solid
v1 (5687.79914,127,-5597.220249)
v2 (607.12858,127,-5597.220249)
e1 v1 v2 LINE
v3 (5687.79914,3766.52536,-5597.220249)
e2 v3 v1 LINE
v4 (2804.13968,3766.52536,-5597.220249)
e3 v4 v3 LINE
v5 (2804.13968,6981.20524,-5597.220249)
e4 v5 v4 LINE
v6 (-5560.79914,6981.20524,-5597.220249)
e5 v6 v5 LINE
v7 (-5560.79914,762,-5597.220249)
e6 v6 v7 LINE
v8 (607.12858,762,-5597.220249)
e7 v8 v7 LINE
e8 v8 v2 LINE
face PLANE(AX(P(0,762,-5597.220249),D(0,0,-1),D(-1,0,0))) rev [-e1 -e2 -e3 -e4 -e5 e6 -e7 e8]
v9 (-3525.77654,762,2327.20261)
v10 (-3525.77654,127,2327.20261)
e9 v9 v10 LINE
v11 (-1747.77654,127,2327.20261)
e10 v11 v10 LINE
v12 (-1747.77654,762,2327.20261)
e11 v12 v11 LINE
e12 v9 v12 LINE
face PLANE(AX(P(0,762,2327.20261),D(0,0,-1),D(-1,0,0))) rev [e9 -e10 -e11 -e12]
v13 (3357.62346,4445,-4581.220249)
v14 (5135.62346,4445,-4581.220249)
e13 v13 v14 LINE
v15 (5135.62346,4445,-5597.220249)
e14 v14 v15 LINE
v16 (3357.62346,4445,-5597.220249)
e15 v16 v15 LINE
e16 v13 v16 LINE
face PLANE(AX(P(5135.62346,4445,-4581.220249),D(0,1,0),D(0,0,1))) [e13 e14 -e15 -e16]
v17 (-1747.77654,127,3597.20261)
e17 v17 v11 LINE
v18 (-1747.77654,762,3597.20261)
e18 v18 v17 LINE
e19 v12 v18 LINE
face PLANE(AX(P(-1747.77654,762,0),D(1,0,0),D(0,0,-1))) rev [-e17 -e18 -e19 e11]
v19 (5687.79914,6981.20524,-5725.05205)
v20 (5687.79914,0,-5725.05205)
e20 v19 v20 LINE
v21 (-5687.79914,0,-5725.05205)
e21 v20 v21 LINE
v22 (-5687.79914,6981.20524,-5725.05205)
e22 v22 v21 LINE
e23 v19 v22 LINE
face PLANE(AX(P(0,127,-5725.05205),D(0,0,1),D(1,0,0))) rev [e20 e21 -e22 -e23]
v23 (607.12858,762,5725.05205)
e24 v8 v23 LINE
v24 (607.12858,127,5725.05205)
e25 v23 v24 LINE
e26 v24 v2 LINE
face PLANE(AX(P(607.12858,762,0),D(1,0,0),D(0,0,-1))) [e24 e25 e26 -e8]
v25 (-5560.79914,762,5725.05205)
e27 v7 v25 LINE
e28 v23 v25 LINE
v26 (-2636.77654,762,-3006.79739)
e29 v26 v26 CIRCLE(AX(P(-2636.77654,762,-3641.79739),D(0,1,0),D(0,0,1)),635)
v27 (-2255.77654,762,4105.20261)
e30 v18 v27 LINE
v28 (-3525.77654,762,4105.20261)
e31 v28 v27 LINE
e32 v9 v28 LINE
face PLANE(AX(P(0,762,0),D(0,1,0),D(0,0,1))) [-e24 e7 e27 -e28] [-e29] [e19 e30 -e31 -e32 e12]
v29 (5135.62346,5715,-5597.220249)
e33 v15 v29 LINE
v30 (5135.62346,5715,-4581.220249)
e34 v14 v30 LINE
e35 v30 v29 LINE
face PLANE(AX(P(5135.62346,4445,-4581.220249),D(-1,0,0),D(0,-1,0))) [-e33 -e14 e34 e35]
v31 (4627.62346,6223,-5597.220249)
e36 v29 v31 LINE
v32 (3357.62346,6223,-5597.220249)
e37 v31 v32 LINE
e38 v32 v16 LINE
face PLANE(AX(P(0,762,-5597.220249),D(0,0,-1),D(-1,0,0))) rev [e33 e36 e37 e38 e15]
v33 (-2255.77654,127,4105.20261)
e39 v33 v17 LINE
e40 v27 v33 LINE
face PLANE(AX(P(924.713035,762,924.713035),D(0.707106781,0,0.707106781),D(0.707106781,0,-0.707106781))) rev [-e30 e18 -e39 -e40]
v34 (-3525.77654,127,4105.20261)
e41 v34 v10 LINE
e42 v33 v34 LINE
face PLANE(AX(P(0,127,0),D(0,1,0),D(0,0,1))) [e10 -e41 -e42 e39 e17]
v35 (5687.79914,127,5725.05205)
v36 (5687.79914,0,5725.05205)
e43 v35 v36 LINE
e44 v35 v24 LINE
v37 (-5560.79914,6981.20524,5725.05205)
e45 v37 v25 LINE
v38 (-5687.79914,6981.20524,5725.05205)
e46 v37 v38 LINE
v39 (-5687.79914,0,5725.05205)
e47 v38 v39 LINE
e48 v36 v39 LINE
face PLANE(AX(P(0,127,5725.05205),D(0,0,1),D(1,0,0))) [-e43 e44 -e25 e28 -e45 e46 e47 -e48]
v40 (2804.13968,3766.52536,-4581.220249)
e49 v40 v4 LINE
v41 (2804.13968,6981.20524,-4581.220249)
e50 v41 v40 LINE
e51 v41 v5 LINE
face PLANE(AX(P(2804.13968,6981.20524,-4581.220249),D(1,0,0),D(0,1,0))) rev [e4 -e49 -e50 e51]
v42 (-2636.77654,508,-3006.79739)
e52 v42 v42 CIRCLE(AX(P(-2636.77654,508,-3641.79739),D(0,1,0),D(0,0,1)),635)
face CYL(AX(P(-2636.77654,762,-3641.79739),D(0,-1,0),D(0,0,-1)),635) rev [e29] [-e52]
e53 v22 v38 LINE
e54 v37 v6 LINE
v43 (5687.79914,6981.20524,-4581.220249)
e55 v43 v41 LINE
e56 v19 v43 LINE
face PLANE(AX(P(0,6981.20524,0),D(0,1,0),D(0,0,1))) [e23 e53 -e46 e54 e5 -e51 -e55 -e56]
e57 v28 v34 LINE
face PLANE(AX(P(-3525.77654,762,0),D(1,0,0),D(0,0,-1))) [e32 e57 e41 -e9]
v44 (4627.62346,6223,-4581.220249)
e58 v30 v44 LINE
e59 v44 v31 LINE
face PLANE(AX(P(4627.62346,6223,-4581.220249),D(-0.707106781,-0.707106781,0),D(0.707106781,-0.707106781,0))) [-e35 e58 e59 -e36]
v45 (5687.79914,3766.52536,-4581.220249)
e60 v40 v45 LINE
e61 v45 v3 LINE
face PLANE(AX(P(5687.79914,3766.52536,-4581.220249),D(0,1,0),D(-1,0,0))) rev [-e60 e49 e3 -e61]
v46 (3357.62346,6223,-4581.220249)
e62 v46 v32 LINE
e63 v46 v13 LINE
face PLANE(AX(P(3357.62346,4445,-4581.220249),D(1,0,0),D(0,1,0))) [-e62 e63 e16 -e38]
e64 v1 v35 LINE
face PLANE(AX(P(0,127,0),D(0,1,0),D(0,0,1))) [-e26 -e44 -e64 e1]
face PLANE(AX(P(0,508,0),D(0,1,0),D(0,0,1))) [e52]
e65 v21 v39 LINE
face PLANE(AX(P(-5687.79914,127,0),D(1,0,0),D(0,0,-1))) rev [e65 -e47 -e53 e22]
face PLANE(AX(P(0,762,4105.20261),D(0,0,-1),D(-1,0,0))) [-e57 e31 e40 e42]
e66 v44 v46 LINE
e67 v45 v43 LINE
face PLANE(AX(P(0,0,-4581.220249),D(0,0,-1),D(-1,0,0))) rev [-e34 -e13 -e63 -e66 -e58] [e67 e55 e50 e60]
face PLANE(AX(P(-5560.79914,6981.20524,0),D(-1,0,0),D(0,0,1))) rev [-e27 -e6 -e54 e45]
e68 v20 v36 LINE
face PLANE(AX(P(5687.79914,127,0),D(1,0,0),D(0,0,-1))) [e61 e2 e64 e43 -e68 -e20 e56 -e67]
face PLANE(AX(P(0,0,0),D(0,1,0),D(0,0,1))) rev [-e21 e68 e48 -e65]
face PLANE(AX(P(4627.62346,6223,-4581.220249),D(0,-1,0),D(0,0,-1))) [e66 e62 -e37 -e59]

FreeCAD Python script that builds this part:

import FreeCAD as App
import Part
import Sketcher
Q = App.Units.Quantity

doc = App.newDocument("Part")
body = doc.addObject("PartDesign::Body", "Body")

# Sketch on XZ plane
sketch1 = body.newObject("Sketcher::SketchObject", "Sketch")
sketch1.AttachmentSupport = (doc.getObject("XZ_Plane"), [""])
sketch1.MapMode = "FlatFace"
sketch1.addGeometry([
    Part.LineSegment(App.Vector(5687.79914, 5725.05205, 0), App.Vector(5687.79914, -5725.05205, 0)),
    Part.LineSegment(App.Vector(5687.79914, -5725.05205, 0), App.Vector(-5687.79914, -5725.05205, 0)),
    Part.LineSegment(App.Vector(-5687.79914, -5725.05205, 0), App.Vector(-5687.79914, 5725.05205, 0)),
    Part.LineSegment(App.Vector(-5687.79914, 5725.05205, 0), App.Vector(5687.79914, 5725.05205, 0)),
], False)
sketch1.addConstraint([
    Sketcher.Constraint("Coincident", 0, 2, 1, 1),
    Sketcher.Constraint("Coincident", 1, 2, 2, 1),
    Sketcher.Constraint("Coincident", 2, 2, 3, 1),
    Sketcher.Constraint("Coincident", 3, 2, 0, 1),
    Sketcher.Constraint("Vertical", 0),
    Sketcher.Constraint("Horizontal", 1),
    Sketcher.Constraint("Vertical", 2),
    Sketcher.Constraint("Horizontal", 3),
    Sketcher.Constraint("Symmetric", 0, 2, 2, 2, -1, 1),
    Sketcher.Constraint("DistanceX", 1, 2, 1, 1, Q("447.8582 in")),
    Sketcher.Constraint("DistanceY", 0, 2, 0, 1, Q("450.7915 in")),
])
pad1 = body.newObject("PartDesign::Pad", "Pad")
pad1.Profile = sketch1
pad1.Length = Q("5 in")
pad1.Reversed = True

# Sketch on XZ plane
sketch2 = body.newObject("Sketcher::SketchObject", "Sketch001")
sketch2.AttachmentSupport = (doc.getObject("XZ_Plane"), [""])
sketch2.MapMode = "FlatFace"
sketch2.addGeometry([
    Part.LineSegment(App.Vector(607.12858, 5725.05205, 0), App.Vector(607.12858, -5597.220249, 0)),  # 0
    Part.LineSegment(App.Vector(607.12858, -5597.220249, 0), App.Vector(5687.79914, -5597.220249, 0)),  # 1
    Part.LineSegment(App.Vector(5687.79914, -5597.220249, 0), App.Vector(5687.79914, -5725.05205, 0)),  # 2
    Part.LineSegment(App.Vector(5687.79914, -5725.05205, 0), App.Vector(-5687.79914, -5725.05205, 0)),  # 3
    Part.LineSegment(App.Vector(-5687.79914, -5725.05205, 0), App.Vector(-5687.79914, 5725.05205, 0)),  # 4
    Part.LineSegment(App.Vector(-5687.79914, 5725.05205, 0), App.Vector(607.12858, 5725.05205, 0)),  # 5
    Part.LineSegment(App.Vector(-3525.77654, 2327.20261, 0), App.Vector(-1747.77654, 2327.20261, 0)),  # 6
    Part.LineSegment(App.Vector(-1747.77654, 2327.20261, 0), App.Vector(-1747.77654, 3597.20261, 0)),  # 7
    Part.LineSegment(App.Vector(-1747.77654, 3597.20261, 0), App.Vector(-2255.77654, 4105.20261, 0)),  # 8
    Part.LineSegment(App.Vector(-2255.77654, 4105.20261, 0), App.Vector(-3525.77654, 4105.20261, 0)),  # 9
    Part.LineSegment(App.Vector(-3525.77654, 4105.20261, 0), App.Vector(-3525.77654, 2327.20261, 0)),  # 10
    Part.Circle(App.Vector(-2636.77654, -3641.79739, 0), App.Vector(0, 0, 1), 635),  # 11
], False)
sketch2.addConstraint([
    Sketcher.Constraint("Coincident", 0, 2, 1, 1),
    Sketcher.Constraint("Coincident", 1, 2, 2, 1),
    Sketcher.Constraint("Coincident", 2, 2, 3, 1),
    Sketcher.Constraint("Coincident", 3, 2, 4, 1),
    Sketcher.Constraint("Coincident", 4, 2, 5, 1),
    Sketcher.Constraint("Coincident", 5, 2, 0, 1),
    Sketcher.Constraint("Coincident", 6, 2, 7, 1),
    Sketcher.Constraint("Coincident", 7, 2, 8, 1),
    Sketcher.Constraint("Coincident", 8, 2, 9, 1),
    Sketcher.Constraint("Coincident", 9, 2, 10, 1),
    Sketcher.Constraint("Coincident", 10, 2, 6, 1),
    Sketcher.Constraint("Vertical", 0),
    Sketcher.Constraint("Horizontal", 1),
    Sketcher.Constraint("Vertical", 2),
    Sketcher.Constraint("Horizontal", 3),
    Sketcher.Constraint("Vertical", 4),
    Sketcher.Constraint("Horizontal", 5),
    Sketcher.Constraint("Horizontal", 6),
    Sketcher.Constraint("Vertical", 7),
    Sketcher.Constraint("Horizontal", 9),
    Sketcher.Constraint("Vertical", 10),
    Sketcher.Constraint("Symmetric", 2, 2, 4, 2, -1, 1),
    Sketcher.Constraint("Equal", 9, 7),
    Sketcher.Constraint("Equal", 6, 10),
    Sketcher.Constraint("Diameter", 11, Q("50 in")),
    Sketcher.Constraint("DistanceX", 6, 1, 6, 2, Q("70 in")),
    Sketcher.Constraint("DistanceX", 9, 2, 9, 1, Q("50 in")),
    Sketcher.Constraint("DistanceX", 11, 3, 6, 2, Q("35 in")),
    Sketcher.Constraint("DistanceY", 11, 3, 6, 2, Q("235 in")),
    Sketcher.Constraint("DistanceX", 1, 1, 1, 2, Q("200.0264 in")),
    Sketcher.Constraint("DistanceX", 3, 2, 3, 1, Q("447.8582 in")),
    Sketcher.Constraint("DistanceY", 4, 1, 4, 2, Q("450.7915 in")),
    Sketcher.Constraint("DistanceX", 3, 2, 11, 3, Q("120.119 in")),
    Sketcher.Constraint("DistanceY", 0, 2, 0, 1, Q("11322.272299 mm")),
    Sketcher.Constraint("DistanceY", 2, 2, 11, 3, Q("82.0179 in")),
])
pad2 = body.newObject("PartDesign::Pad", "Pad001")
pad2.Profile = sketch2
pad2.Length = Q("30 in")
pad2.Reversed = True

# Sketch on XZ plane
sketch3 = body.newObject("Sketcher::SketchObject", "Sketch002")
sketch3.AttachmentSupport = (doc.getObject("XZ_Plane"), [""])
sketch3.MapMode = "FlatFace"
sketch3.addGeometry([
    Part.LineSegment(App.Vector(5687.79914, -5597.220249, 0), App.Vector(5687.79914, -5725.05205, 0)),  # 0
    Part.LineSegment(App.Vector(5687.79914, -5725.05205, 0), App.Vector(-5687.79914, -5725.05205, 0)),  # 1
    Part.LineSegment(App.Vector(-5687.79914, -5725.05205, 0), App.Vector(-5687.79914, 5725.05205, 0)),  # 2
    Part.LineSegment(App.Vector(-5687.79914, 5725.05205, 0), App.Vector(-5560.79914, 5725.05205, 0)),  # 3
    Part.LineSegment(App.Vector(-5560.79914, 5725.05205, 0), App.Vector(-5560.79914, -5597.220249, 0)),  # 4
    Part.LineSegment(App.Vector(-5560.79914, -5597.220249, 0), App.Vector(5687.79914, -5597.220249, 0)),  # 5
], False)
sketch3.addConstraint([
    Sketcher.Constraint("Coincident", 0, 2, 1, 1),
    Sketcher.Constraint("Coincident", 1, 2, 2, 1),
    Sketcher.Constraint("Coincident", 2, 2, 3, 1),
    Sketcher.Constraint("Coincident", 3, 2, 4, 1),
    Sketcher.Constraint("Coincident", 4, 2, 5, 1),
    Sketcher.Constraint("Coincident", 5, 2, 0, 1),
    Sketcher.Constraint("Vertical", 0),
    Sketcher.Constraint("Horizontal", 1),
    Sketcher.Constraint("Vertical", 2),
    Sketcher.Constraint("Horizontal", 3),
    Sketcher.Constraint("Vertical", 4),
    Sketcher.Constraint("Horizontal", 5),
    Sketcher.Constraint("Symmetric", 0, 2, 2, 2, -1, 1),
    Sketcher.Constraint("DistanceX", 3, 1, 3, 2, Q("5 in")),
    Sketcher.Constraint("DistanceX", 1, 2, 1, 1, Q("447.8582 in")),
    Sketcher.Constraint("DistanceY", 2, 1, 2, 2, Q("450.7915 in")),
    Sketcher.Constraint("DistanceY", 0, 2, 0, 1, Q("127.831801 mm")),
])
pad3 = body.newObject("PartDesign::Pad", "Pad002")
pad3.Profile = sketch3
pad3.Length = Q("274.8506 in")
pad3.Reversed = True

# Sketch on XZ plane
sketch4 = body.newObject("Sketcher::SketchObject", "Sketch003")
sketch4.AttachmentSupport = (doc.getObject("XZ_Plane"), [""])
sketch4.MapMode = "FlatFace"
sketch4.addGeometry(Part.Circle(App.Vector(-2636.77654, -3641.79739, 0), App.Vector(0, 0, 1), 635), False)
sketch4.addConstraint([
    Sketcher.Constraint("Diameter", 0, Q("50 in")),
    Sketcher.Constraint("DistanceX", 0, 3, -1, 1, Q("103.8101 in")),
    Sketcher.Constraint("DistanceY", 0, 3, -1, 1, Q("3641.79739 mm")),
])
pad4 = body.newObject("PartDesign::Pad", "Pad003")
pad4.Profile = sketch4
pad4.Length = Q("20 in")
pad4.Reversed = True

# Sketch on XY plane
sketch5 = body.newObject("Sketcher::SketchObject", "Sketch004")
sketch5.AttachmentSupport = (doc.getObject("XY_Plane"), [""])
sketch5.MapMode = "FlatFace"
sketch5.AttachmentOffset = App.Placement(App.Vector(0, 0, -5597.220249), App.Rotation())
sketch5.addGeometry([
    Part.LineSegment(App.Vector(2804.13968, 6981.20524, 0), App.Vector(2804.13968, 3766.52536, 0)),  # 0
    Part.LineSegment(App.Vector(2804.13968, 3766.52536, 0), App.Vector(5687.79914, 3766.52536, 0)),  # 1
    Part.LineSegment(App.Vector(5687.79914, 3766.52536, 0), App.Vector(5687.79914, 6981.20524, 0)),  # 2
    Part.LineSegment(App.Vector(5687.79914, 6981.20524, 0), App.Vector(2804.13968, 6981.20524, 0)),  # 3
    Part.LineSegment(App.Vector(3357.62346, 6223, 0), App.Vector(4627.62346, 6223, 0)),  # 4
    Part.LineSegment(App.Vector(4627.62346, 6223, 0), App.Vector(5135.62346, 5715, 0)),  # 5
    Part.LineSegment(App.Vector(5135.62346, 5715, 0), App.Vector(5135.62346, 4445, 0)),  # 6
    Part.LineSegment(App.Vector(5135.62346, 4445, 0), App.Vector(3357.62346, 4445, 0)),  # 7
    Part.LineSegment(App.Vector(3357.62346, 4445, 0), App.Vector(3357.62346, 6223, 0)),  # 8
], False)
sketch5.addConstraint([
    Sketcher.Constraint("Coincident", 0, 2, 1, 1),
    Sketcher.Constraint("Coincident", 1, 2, 2, 1),
    Sketcher.Constraint("Coincident", 2, 2, 3, 1),
    Sketcher.Constraint("Coincident", 3, 2, 0, 1),
    Sketcher.Constraint("Coincident", 4, 2, 5, 1),
    Sketcher.Constraint("Coincident", 5, 2, 6, 1),
    Sketcher.Constraint("Coincident", 6, 2, 7, 1),
    Sketcher.Constraint("Coincident", 7, 2, 8, 1),
    Sketcher.Constraint("Coincident", 8, 2, 4, 1),
    Sketcher.Constraint("Vertical", 0),
    Sketcher.Constraint("Horizontal", 1),
    Sketcher.Constraint("Vertical", 2),
    Sketcher.Constraint("Horizontal", 3),
    Sketcher.Constraint("Horizontal", 4),
    Sketcher.Constraint("Vertical", 6),
    Sketcher.Constraint("Horizontal", 7),
    Sketcher.Constraint("Vertical", 8),
    Sketcher.Constraint("Equal", 4, 6),
    Sketcher.Constraint("Equal", 7, 8),
    Sketcher.Constraint("DistanceX", 4, 1, 4, 2, Q("50 in")),
    Sketcher.Constraint("DistanceX", 7, 2, 7, 1, Q("70 in")),
    Sketcher.Constraint("DistanceY", -1, 1, 4, 2, Q("245 in")),
    Sketcher.Constraint("DistanceX", 1, 1, 1, 2, Q("113.5299 in")),
    Sketcher.Constraint("DistanceY", 0, 2, 0, 1, Q("126.5622 in")),
    Sketcher.Constraint("DistanceX", -1, 1, 0, 2, Q("110.3992 in")),
    Sketcher.Constraint("DistanceY", -1, 1, 0, 2, Q("148.2884 in")),
    Sketcher.Constraint("DistanceX", -1, 1, 4, 2, Q("182.1899 in")),
])
pad5 = body.newObject("PartDesign::Pad", "Pad004")
pad5.Profile = sketch5
pad5.Length = Q("40 in")

doc.recompute()
